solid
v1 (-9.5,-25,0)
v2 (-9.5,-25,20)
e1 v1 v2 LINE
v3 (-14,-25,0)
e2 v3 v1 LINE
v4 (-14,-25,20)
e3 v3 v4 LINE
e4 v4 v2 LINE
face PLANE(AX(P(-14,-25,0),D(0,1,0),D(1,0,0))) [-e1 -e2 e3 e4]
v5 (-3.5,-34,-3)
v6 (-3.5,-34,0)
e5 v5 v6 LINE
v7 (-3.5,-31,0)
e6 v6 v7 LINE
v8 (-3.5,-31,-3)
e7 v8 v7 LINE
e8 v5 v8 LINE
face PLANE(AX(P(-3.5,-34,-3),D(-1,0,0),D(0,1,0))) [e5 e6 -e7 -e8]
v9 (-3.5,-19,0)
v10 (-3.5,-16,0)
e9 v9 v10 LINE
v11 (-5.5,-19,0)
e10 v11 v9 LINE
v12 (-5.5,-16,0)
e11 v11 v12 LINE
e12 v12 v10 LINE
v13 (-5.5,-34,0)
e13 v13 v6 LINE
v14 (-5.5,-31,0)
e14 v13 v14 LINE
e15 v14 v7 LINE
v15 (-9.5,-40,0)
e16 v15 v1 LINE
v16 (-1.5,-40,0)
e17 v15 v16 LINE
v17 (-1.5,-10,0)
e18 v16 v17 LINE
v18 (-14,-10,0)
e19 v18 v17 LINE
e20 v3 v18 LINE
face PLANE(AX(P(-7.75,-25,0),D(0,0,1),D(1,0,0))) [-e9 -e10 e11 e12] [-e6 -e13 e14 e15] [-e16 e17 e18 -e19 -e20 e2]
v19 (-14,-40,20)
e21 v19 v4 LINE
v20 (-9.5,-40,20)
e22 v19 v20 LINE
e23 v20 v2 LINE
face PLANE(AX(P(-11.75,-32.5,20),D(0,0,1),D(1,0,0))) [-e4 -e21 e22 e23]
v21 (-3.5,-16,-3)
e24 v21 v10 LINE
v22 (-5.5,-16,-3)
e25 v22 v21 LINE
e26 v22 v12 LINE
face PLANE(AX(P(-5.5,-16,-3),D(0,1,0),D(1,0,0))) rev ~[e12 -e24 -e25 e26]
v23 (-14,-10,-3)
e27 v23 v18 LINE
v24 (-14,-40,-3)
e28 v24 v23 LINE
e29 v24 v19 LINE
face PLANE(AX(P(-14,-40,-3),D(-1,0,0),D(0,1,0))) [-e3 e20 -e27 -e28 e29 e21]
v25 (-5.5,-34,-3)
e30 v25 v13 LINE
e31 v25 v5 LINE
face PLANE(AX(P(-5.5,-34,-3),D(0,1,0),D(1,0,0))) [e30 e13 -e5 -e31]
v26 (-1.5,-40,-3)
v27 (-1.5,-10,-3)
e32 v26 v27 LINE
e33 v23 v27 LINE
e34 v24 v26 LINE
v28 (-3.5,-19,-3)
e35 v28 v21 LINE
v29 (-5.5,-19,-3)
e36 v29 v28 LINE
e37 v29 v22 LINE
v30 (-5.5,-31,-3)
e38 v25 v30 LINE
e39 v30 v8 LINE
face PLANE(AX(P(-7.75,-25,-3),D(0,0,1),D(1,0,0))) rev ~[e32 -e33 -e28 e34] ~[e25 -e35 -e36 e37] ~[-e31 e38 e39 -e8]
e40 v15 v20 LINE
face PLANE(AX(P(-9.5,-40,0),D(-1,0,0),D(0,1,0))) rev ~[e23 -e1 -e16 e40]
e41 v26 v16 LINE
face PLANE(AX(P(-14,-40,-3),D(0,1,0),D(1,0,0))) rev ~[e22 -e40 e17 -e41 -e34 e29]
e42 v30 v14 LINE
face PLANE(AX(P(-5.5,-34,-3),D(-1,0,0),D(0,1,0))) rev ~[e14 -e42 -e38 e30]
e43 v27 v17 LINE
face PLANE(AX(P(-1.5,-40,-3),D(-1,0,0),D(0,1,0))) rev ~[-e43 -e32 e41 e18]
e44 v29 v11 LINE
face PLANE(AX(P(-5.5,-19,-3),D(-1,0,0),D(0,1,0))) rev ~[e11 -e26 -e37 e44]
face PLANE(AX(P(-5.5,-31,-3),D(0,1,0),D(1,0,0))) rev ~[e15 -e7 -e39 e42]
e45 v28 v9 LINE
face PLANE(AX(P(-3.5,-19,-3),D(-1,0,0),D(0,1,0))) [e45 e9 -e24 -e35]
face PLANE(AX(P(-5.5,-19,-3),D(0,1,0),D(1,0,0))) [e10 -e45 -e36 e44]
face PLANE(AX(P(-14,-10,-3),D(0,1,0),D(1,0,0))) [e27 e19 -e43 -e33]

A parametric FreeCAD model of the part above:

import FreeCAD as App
import Part
import Sketcher

doc = App.newDocument("Part")
params = doc.addObject("Spreadsheet::Sheet", "Params")
for row, (alias, value) in enumerate([
    ("sketch1_width", "2 mm"),
    ("sketch1_height", "3 mm"),
    ("pad1_length", "3 mm"),
    ("sketch2_width", "2 mm"),
    ("sketch2_height", "3 mm"),
    ("pad2_length", "3 mm"),
    ("sketch3_height", "30 mm"),
    ("sketch3_width", "12.5 mm"),
    ("pad3_length", "3 mm"),
    ("sketch4_height", "15 mm"),
    ("sketch4_width", "4.5 mm"),
    ("pad4_length", "20 mm"),
], start=1):
    params.set(f"A{row}", alias)
    params.set(f"B{row}", "=" + value)
    params.setAlias(f"B{row}", alias)

body = doc.addObject("PartDesign::Body", "Body")

sketch1 = body.newObject("Sketcher::SketchObject", "Sketch")
sketch1.AttachmentSupport = (doc.getObject("XY_Plane"), [""])
sketch1.MapMode = "FlatFace"
sketch1.AttachmentOffset = App.Placement(App.Vector(0, 0, -3), App.Rotation())
sketch1.addGeometry(Part.LineSegment(App.Vector(-5.5, -31, 0), App.Vector(-5.5, -34, 0)), False)
sketch1.addGeometry(Part.LineSegment(App.Vector(-5.5, -34, 0), App.Vector(-3.5, -34, 0)), False)
sketch1.addGeometry(Part.LineSegment(App.Vector(-3.5, -34, 0), App.Vector(-3.5, -31, 0)), False)
sketch1.addGeometry(Part.LineSegment(App.Vector(-3.5, -31, 0), App.Vector(-5.5, -31, 0)), False)
sketch1.addConstraint(Sketcher.Constraint("Coincident", 0, 2, 1, 1))
sketch1.addConstraint(Sketcher.Constraint("Coincident", 1, 2, 2, 1))
sketch1.addConstraint(Sketcher.Constraint("Coincident", 2, 2, 3, 1))
sketch1.addConstraint(Sketcher.Constraint("Coincident", 3, 2, 0, 1))
sketch1.addConstraint(Sketcher.Constraint("Vertical", 0))
sketch1.addConstraint(Sketcher.Constraint("Horizontal", 1))
sketch1.addConstraint(Sketcher.Constraint("Vertical", 2))
sketch1.addConstraint(Sketcher.Constraint("Horizontal", 3))
sketch1.addConstraint(Sketcher.Constraint("DistanceX", 1, 1, 1, 2, 2.0))
sketch1.addConstraint(Sketcher.Constraint("DistanceY", 0, 2, 0, 1, 3.0))
sketch1.addConstraint(Sketcher.Constraint("DistanceY", 0, 2, -1, 1, 34.0))
sketch1.addConstraint(Sketcher.Constraint("DistanceX", 0, 2, -1, 1, 5.5))
sketch1.setExpression("Constraints[8]", "Params.sketch1_width")
sketch1.setExpression("Constraints[9]", "Params.sketch1_height")
pad1 = body.newObject("PartDesign::Pad", "Pad")
pad1.Profile = sketch1
pad1.setExpression("Length", "Params.pad1_length")
body2 = doc.addObject("PartDesign::Body", "Body001")
body2.AllowCompound = True

sketch2 = body2.newObject("Sketcher::SketchObject", "Sketch001")
sketch2.AttachmentSupport = (doc.getObject("XY_Plane001"), [""])
sketch2.MapMode = "FlatFace"
sketch2.AttachmentOffset = App.Placement(App.Vector(0, 0, -3), App.Rotation())
sketch2.addGeometry(Part.LineSegment(App.Vector(-5.5, -16, 0), App.Vector(-5.5, -19, 0)), False)
sketch2.addGeometry(Part.LineSegment(App.Vector(-5.5, -19, 0), App.Vector(-3.5, -19, 0)), False)
sketch2.addGeometry(Part.LineSegment(App.Vector(-3.5, -19, 0), App.Vector(-3.5, -16, 0)), False)
sketch2.addGeometry(Part.LineSegment(App.Vector(-3.5, -16, 0), App.Vector(-5.5, -16, 0)), False)
sketch2.addConstraint(Sketcher.Constraint("Coincident", 0, 2, 1, 1))
sketch2.addConstraint(Sketcher.Constraint("Coincident", 1, 2, 2, 1))
sketch2.addConstraint(Sketcher.Constraint("Coincident", 2, 2, 3, 1))
sketch2.addConstraint(Sketcher.Constraint("Coincident", 3, 2, 0, 1))
sketch2.addConstraint(Sketcher.Constraint("Vertical", 0))
sketch2.addConstraint(Sketcher.Constraint("Horizontal", 1))
sketch2.addConstraint(Sketcher.Constraint("Vertical", 2))
sketch2.addConstraint(Sketcher.Constraint("Horizontal", 3))
sketch2.addConstraint(Sketcher.Constraint("DistanceX", 1, 1, 1, 2, 2.0))
sketch2.addConstraint(Sketcher.Constraint("DistanceY", 0, 2, 0, 1, 3.0))
sketch2.addConstraint(Sketcher.Constraint("DistanceY", 0, 2, -1, 1, 19.0))
sketch2.addConstraint(Sketcher.Constraint("DistanceX", 0, 2, -1, 1, 5.5))
sketch2.setExpression("Constraints[8]", "Params.sketch2_width")
sketch2.setExpression("Constraints[9]", "Params.sketch2_height")
pad2 = body2.newObject("PartDesign::Pad", "Pad001")
pad2.Profile = sketch2
pad2.setExpression("Length", "Params.pad2_length")
doc.recompute()

boolean = body2.newObject("PartDesign::Boolean", "Boolean")
boolean.Type = "Fuse"
boolean.addObjects([body])
body3 = doc.addObject("PartDesign::Body", "Body002")

sketch3 = body3.newObject("Sketcher::SketchObject", "Sketch002")
sketch3.AttachmentSupport = (doc.getObject("XY_Plane002"), [""])
sketch3.MapMode = "FlatFace"
sketch3.AttachmentOffset = App.Placement(App.Vector(0, 0, -3), App.Rotation())
sketch3.addGeometry(Part.LineSegment(App.Vector(-14, -10, 0), App.Vector(-14, -40, 0)), False)
sketch3.addGeometry(Part.LineSegment(App.Vector(-14, -40, 0), App.Vector(-1.5, -40, 0)), False)
sketch3.addGeometry(Part.LineSegment(App.Vector(-1.5, -40, 0), App.Vector(-1.5, -10, 0)), False)
sketch3.addGeometry(Part.LineSegment(App.Vector(-1.5, -10, 0), App.Vector(-14, -10, 0)), False)
sketch3.addConstraint(Sketcher.Constraint("Coincident", 0, 2, 1, 1))
sketch3.addConstraint(Sketcher.Constraint("Coincident", 1, 2, 2, 1))
sketch3.addConstraint(Sketcher.Constraint("Coincident", 2, 2, 3, 1))
sketch3.addConstraint(Sketcher.Constraint("Coincident", 3, 2, 0, 1))
sketch3.addConstraint(Sketcher.Constraint("Vertical", 0))
sketch3.addConstraint(Sketcher.Constraint("Horizontal", 1))
sketch3.addConstraint(Sketcher.Constraint("Vertical", 2))
sketch3.addConstraint(Sketcher.Constraint("Horizontal", 3))
sketch3.addConstraint(Sketcher.Constraint("DistanceY", 0, 2, 0, 1, 30.0))
sketch3.addConstraint(Sketcher.Constraint("DistanceX", 1, 1, 1, 2, 12.5))
sketch3.addConstraint(Sketcher.Constraint("DistanceX", 0, 2, -1, 1, 14.0))
sketch3.addConstraint(Sketcher.Constraint("DistanceY", 0, 2, -1, 1, 40.0))
sketch3.setExpression("Constraints[8]", "Params.sketch3_height")
sketch3.setExpression("Constraints[9]", "Params.sketch3_width")
pad3 = body3.newObject("PartDesign::Pad", "Pad002")
pad3.Profile = sketch3
pad3.setExpression("Length", "Params.pad3_length")
doc.recompute()

boolean2 = body3.newObject("PartDesign::Boolean", "Boolean001")
boolean2.Type = "Cut"
boolean2.addObjects([body2])
body4 = doc.addObject("PartDesign::Body", "Body003")

sketch4 = body4.newObject("Sketcher::SketchObject", "Sketch003")
sketch4.AttachmentSupport = (doc.getObject("XY_Plane003"), [""])
sketch4.MapMode = "FlatFace"
sketch4.addGeometry(Part.LineSegment(App.Vector(-14, -25, 0), App.Vector(-14, -40, 0)), False)
sketch4.addGeometry(Part.LineSegment(App.Vector(-14, -40, 0), App.Vector(-9.5, -40, 0)), False)
sketch4.addGeometry(Part.LineSegment(App.Vector(-9.5, -40, 0), App.Vector(-9.5, -25, 0)), False)
sketch4.addGeometry(Part.LineSegment(App.Vector(-9.5, -25, 0), App.Vector(-14, -25, 0)), False)
sketch4.addConstraint(Sketcher.Constraint("Coincident", 0, 2, 1, 1))
sketch4.addConstraint(Sketcher.Constraint("Coincident", 1, 2, 2, 1))
sketch4.addConstraint(Sketcher.Constraint("Coincident", 2, 2, 3, 1))
sketch4.addConstraint(Sketcher.Constraint("Coincident", 3, 2, 0, 1))
sketch4.addConstraint(Sketcher.Constraint("Vertical", 0))
sketch4.addConstraint(Sketcher.Constraint("Horizontal", 1))
sketch4.addConstraint(Sketcher.Constraint("Vertical", 2))
sketch4.addConstraint(Sketcher.Constraint("Horizontal", 3))
sketch4.addConstraint(Sketcher.Constraint("DistanceY", 0, 2, 0, 1, 15.0))
sketch4.addConstraint(Sketcher.Constraint("DistanceX", 1, 1, 1, 2, 4.5))
sketch4.addConstraint(Sketcher.Constraint("DistanceX", 0, 2, -1, 1, 14.0))
sketch4.addConstraint(Sketcher.Constraint("DistanceY", 0, 2, -1, 1, 40.0))
sketch4.setExpression("Constraints[8]", "Params.sketch4_height")
sketch4.setExpression("Constraints[9]", "Params.sketch4_width")
pad4 = body4.newObject("PartDesign::Pad", "Pad003")
pad4.Profile = sketch4
pad4.setExpression("Length", "Params.pad4_length")
doc.recompute()

boolean3 = body4.newObject("PartDesign::Boolean", "Boolean002")
boolean3.Type = "Fuse"
boolean3.addObjects([body3])

doc.recompute()
